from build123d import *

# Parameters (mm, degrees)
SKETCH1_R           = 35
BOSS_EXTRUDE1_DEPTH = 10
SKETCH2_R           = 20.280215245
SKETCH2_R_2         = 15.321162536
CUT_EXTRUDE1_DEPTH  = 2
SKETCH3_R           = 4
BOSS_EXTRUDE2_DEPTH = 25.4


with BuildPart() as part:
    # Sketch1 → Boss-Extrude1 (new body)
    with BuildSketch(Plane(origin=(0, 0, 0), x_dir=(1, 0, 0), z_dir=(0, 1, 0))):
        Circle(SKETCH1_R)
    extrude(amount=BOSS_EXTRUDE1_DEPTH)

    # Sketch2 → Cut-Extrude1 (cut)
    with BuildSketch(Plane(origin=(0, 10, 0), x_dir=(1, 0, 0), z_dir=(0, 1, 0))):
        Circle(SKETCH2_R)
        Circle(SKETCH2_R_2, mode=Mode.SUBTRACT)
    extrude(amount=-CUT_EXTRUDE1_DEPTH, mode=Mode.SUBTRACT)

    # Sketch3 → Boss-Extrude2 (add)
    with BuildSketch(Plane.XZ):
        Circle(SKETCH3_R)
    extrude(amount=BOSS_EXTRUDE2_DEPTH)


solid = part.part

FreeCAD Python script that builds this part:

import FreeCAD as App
import Part
import Sketcher

V = App.Vector
Q = App.Units.Quantity

doc = App.newDocument("Part")
body = doc.addObject("PartDesign::Body", "Body")

# Sketch on XZ plane
sketch1 = doc.addObject("Sketcher::SketchObject", "Sketch")
body.addObject(sketch1)
sketch1.AttachmentSupport = (doc.XZ_Plane, [""])
sketch1.MapMode = "FlatFace"
sketch1.addGeometry(Part.Circle(V(0, 0, 0), V(0, 0, 1), 35), False)
sketch1.addConstraint([
    Sketcher.Constraint("Coincident", 0, 3, -1, 1),
    Sketcher.Constraint("Diameter", 0, Q("70 mm")),
])
pad1 = doc.addObject("PartDesign::Pad", "Pad")
body.addObject(pad1)
pad1.Profile = sketch1
pad1.Length = 10
pad1.Reversed = True

# Sketch on XZ plane
sketch2 = doc.addObject("Sketcher::SketchObject", "Sketch001")
body.addObject(sketch2)
sketch2.AttachmentSupport = (doc.XZ_Plane, [""])
sketch2.MapMode = "FlatFace"
sketch2.AttachmentOffset = App.Placement(V(0, 0, -10), App.Rotation())
sketch2.addGeometry([
    Part.Circle(V(0, 0, 0), V(0, 0, 1), 20),
    Part.Circle(V(0, 0, 0), V(0, 0, 1), 15),
], False)
sketch2.addConstraint([
    Sketcher.Constraint("Coincident", 0, 3, -1, 1),
    Sketcher.Constraint("Coincident", 1, 3, -1, 1),
    Sketcher.Constraint("Diameter", 0, Q("40.56043 mm")),
    Sketcher.Constraint("Diameter", 1, Q("30.642325 mm")),
])
pocket1 = doc.addObject("PartDesign::Pocket", "Pocket")
body.addObject(pocket1)
pocket1.Profile = sketch2
pocket1.Length = 2
pocket1.Reversed = True

# Sketch on XZ plane
sketch3 = doc.addObject("Sketcher::SketchObject", "Sketch002")
body.addObject(sketch3)
sketch3.AttachmentSupport = (doc.XZ_Plane, [""])
sketch3.MapMode = "FlatFace"
sketch3.addGeometry(Part.Circle(V(0, 0, 0), V(0, 0, 1), 4), False)
sketch3.addConstraint([
    Sketcher.Constraint("Coincident", 0, 3, -1, 1),
    Sketcher.Constraint("Diameter", 0, Q("8 mm")),
])
pad2 = doc.addObject("PartDesign::Pad", "Pad001")
body.addObject(pad2)
pad2.Profile = sketch3
pad2.Length = 25.4

doc.recompute()
